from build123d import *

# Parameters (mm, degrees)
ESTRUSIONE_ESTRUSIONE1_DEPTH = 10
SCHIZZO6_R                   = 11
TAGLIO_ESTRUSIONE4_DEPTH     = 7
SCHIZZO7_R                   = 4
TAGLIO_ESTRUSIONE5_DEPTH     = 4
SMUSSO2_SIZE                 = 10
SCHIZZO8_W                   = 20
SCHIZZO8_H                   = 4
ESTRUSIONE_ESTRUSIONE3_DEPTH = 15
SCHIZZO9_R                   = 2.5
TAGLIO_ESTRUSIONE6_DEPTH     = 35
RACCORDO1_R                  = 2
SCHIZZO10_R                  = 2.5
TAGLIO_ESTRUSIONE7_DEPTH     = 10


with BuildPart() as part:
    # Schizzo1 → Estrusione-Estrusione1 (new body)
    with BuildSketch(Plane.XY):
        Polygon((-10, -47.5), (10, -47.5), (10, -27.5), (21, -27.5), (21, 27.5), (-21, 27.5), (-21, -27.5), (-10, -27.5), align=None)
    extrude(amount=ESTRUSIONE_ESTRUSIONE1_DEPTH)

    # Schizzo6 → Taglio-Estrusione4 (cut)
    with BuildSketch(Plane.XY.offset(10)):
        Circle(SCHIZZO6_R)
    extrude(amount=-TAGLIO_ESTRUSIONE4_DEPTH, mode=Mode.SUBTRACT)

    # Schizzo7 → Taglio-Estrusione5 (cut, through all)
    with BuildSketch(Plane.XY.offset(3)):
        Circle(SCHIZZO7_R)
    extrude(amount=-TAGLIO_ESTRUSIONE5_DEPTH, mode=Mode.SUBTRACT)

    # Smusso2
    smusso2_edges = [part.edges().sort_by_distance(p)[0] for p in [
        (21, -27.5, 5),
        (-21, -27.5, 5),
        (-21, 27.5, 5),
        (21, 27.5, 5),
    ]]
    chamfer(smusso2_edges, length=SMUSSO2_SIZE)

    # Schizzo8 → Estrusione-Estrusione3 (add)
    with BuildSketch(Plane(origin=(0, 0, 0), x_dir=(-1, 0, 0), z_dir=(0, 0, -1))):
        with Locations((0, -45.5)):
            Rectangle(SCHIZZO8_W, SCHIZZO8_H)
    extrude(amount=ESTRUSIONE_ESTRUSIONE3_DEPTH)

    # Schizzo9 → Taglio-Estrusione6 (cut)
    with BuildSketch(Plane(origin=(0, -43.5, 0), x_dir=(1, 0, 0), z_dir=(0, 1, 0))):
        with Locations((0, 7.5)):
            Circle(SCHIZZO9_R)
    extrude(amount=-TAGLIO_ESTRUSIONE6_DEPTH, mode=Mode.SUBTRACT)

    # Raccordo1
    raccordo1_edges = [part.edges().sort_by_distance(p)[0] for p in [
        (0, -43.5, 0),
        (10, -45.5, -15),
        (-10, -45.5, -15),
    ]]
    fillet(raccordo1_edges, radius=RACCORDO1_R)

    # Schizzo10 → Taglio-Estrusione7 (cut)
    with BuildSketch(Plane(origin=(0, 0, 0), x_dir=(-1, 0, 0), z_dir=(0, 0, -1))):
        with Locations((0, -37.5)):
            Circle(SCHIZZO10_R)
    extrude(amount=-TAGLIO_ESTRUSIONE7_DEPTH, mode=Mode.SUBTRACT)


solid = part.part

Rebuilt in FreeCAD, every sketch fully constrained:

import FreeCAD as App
import Part
import Sketcher


def edges_at(feature, points):
    """Names of the edges that pass closest to the given points."""
    edges = feature.Shape.Edges
    near = lambda p: min(range(len(edges)), key=lambda i: edges[i].distToShape(Part.Vertex(*p))[0])
    return sorted({f"Edge{near(p) + 1}" for p in points})


def add_polygon(sketch, points):
    """Adds a closed chain of lines whose ends are joined by coincident constraints."""
    first, n = sketch.GeometryCount, len(points)
    for a, b in zip(points, points[1:] + points[:1]):
        sketch.addGeometry(Part.LineSegment(App.Vector(*a, 0), App.Vector(*b, 0)), False)
    for i in range(n):
        sketch.addConstraint(Sketcher.Constraint("Coincident", first + i, 2, first + (i + 1) % n, 1))

doc = App.newDocument("Part")
body = doc.addObject("PartDesign::Body", "Body")

# Sketch on XY plane
sketch1 = body.newObject("Sketcher::SketchObject", "Sketch")
sketch1.AttachmentSupport = (doc.getObject("XY_Plane"), [""])
sketch1.MapMode = "FlatFace"
add_polygon(sketch1, [(-10, -47.5), (10, -47.5), (10, -27.5), (21, -27.5), (21, 27.5), (-21, 27.5), (-21, -27.5), (-10, -27.5)])  # lines 0-7
sketch1.addConstraint([
    Sketcher.Constraint("Horizontal", 0),
    Sketcher.Constraint("Vertical", 1),
    Sketcher.Constraint("Horizontal", 2),
    Sketcher.Constraint("Vertical", 3),
    Sketcher.Constraint("Horizontal", 4),
    Sketcher.Constraint("Vertical", 5),
    Sketcher.Constraint("Horizontal", 6),
    Sketcher.Constraint("Vertical", 7),
    Sketcher.Constraint("Symmetric", 2, 2, 4, 2, -1, 1),
    Sketcher.Constraint("Symmetric", 1, 2, 6, 2, -2),
    Sketcher.Constraint("Equal", 0, 1),
    Sketcher.Constraint("DistanceX", 0, 1, 0, 2, 20.0),
    Sketcher.Constraint("DistanceX", 2, 1, 2, 2, 11.0),
    Sketcher.Constraint("DistanceY", 3, 1, 3, 2, 55.0),
])
pad1 = body.newObject("PartDesign::Pad", "Pad")
pad1.Profile = sketch1
pad1.Length = 10

# Sketch on XY plane
sketch2 = body.newObject("Sketcher::SketchObject", "Sketch001")
sketch2.AttachmentSupport = (doc.getObject("XY_Plane"), [""])
sketch2.MapMode = "FlatFace"
sketch2.AttachmentOffset = App.Placement(App.Vector(0, 0, 10), App.Rotation())
sketch2.addGeometry(Part.Circle(App.Vector(0, 0, 0), App.Vector(0, 0, 1), 11), False)
sketch2.addConstraint([
    Sketcher.Constraint("Coincident", 0, 3, -1, 1),
    Sketcher.Constraint("Diameter", 0, 22.0),
])
pocket1 = body.newObject("PartDesign::Pocket", "Pocket")
pocket1.Profile = sketch2
pocket1.Length = 7

# Sketch on XY plane
sketch3 = body.newObject("Sketcher::SketchObject", "Sketch002")
sketch3.AttachmentSupport = (doc.getObject("XY_Plane"), [""])
sketch3.MapMode = "FlatFace"
sketch3.AttachmentOffset = App.Placement(App.Vector(0, 0, 3), App.Rotation())
sketch3.addGeometry(Part.Circle(App.Vector(0, 0, 0), App.Vector(0, 0, 1), 4), False)
sketch3.addConstraint([
    Sketcher.Constraint("Coincident", 0, 3, -1, 1),
    Sketcher.Constraint("Diameter", 0, 8.0),
])
pocket2 = body.newObject("PartDesign::Pocket", "Pocket001")
pocket2.Profile = sketch3
pocket2.Type = "ThroughAll"
doc.recompute()

chamfer = body.newObject("PartDesign::Chamfer", "Chamfer")
chamfer.Base = (pocket2, edges_at(pocket2, [
    (21, -27.5, 5),
    (-21, -27.5, 5),
    (-21, 27.5, 5),
    (21, 27.5, 5),
]))
chamfer.Size = 10

# Sketch on XY plane
sketch4 = body.newObject("Sketcher::SketchObject", "Sketch003")
sketch4.AttachmentSupport = (doc.getObject("XY_Plane"), [""])
sketch4.MapMode = "FlatFace"
add_polygon(sketch4, [(10, -43.5), (10, -47.5), (-10, -47.5), (-10, -43.5)])  # lines 0-3
sketch4.addConstraint([
    Sketcher.Constraint("Vertical", 0),
    Sketcher.Constraint("Horizontal", 1),
    Sketcher.Constraint("Vertical", 2),
    Sketcher.Constraint("Horizontal", 3),
    Sketcher.Constraint("DistanceX", 1, 2, 1, 1, 20.0),
    Sketcher.Constraint("DistanceY", 0, 2, 0, 1, 4.0),
    Sketcher.Constraint("DistanceX", -1, 1, 0, 2, 10.0),
    Sketcher.Constraint("DistanceY", 0, 2, -1, 1, 47.5),
])
pad2 = body.newObject("PartDesign::Pad", "Pad001")
pad2.Profile = sketch4
pad2.Length = 15
pad2.Reversed = True

# Sketch on XZ plane
sketch5 = body.newObject("Sketcher::SketchObject", "Sketch004")
sketch5.AttachmentSupport = (doc.getObject("XZ_Plane"), [""])
sketch5.MapMode = "FlatFace"
sketch5.AttachmentOffset = App.Placement(App.Vector(0, 0, 43.5), App.Rotation())
sketch5.addGeometry(Part.Circle(App.Vector(0, -7.5, 0), App.Vector(0, 0, 1), 2.5), False)
sketch5.addConstraint([
    Sketcher.Constraint("PointOnObject", 0, 3, -2),
    Sketcher.Constraint("Diameter", 0, 5.0),
    Sketcher.Constraint("DistanceY", 0, 3, -1, 1, 7.5),
])
pocket3 = body.newObject("PartDesign::Pocket", "Pocket002")
pocket3.Profile = sketch5
pocket3.Length = 35
pocket3.Reversed = True
doc.recompute()

fillet = body.newObject("PartDesign::Fillet", "Fillet")
fillet.Base = (pocket3, edges_at(pocket3, [(0, -43.5, 0), (10, -45.5, -15), (-10, -45.5, -15)]))
fillet.Radius = 2

# Sketch on XY plane
sketch6 = body.newObject("Sketcher::SketchObject", "Sketch005")
sketch6.AttachmentSupport = (doc.getObject("XY_Plane"), [""])
sketch6.MapMode = "FlatFace"
sketch6.addGeometry(Part.Circle(App.Vector(0, -37.5, 0), App.Vector(0, 0, 1), 2.5), False)
sketch6.addConstraint([
    Sketcher.Constraint("PointOnObject", 0, 3, -2),
    Sketcher.Constraint("Diameter", 0, 5.0),
    Sketcher.Constraint("DistanceY", 0, 3, -1, 1, 37.5),
])
pocket4 = body.newObject("PartDesign::Pocket", "Pocket003")
pocket4.Profile = sketch6
pocket4.Length = 10
pocket4.Reversed = True

doc.recompute()
